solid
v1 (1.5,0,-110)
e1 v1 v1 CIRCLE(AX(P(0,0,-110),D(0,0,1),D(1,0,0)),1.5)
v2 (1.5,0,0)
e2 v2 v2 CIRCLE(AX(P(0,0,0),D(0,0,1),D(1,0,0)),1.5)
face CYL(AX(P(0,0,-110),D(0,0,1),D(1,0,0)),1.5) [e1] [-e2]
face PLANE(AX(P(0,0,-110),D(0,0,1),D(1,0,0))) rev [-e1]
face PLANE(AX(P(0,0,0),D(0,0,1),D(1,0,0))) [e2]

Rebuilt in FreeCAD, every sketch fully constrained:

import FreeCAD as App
import Part
import Sketcher

V = App.Vector

doc = App.newDocument("Part")
params = doc.addObject("Spreadsheet::Sheet", "Params")
for row, (alias, value) in enumerate([
    ("sketch1_diameter", "3 mm"),
    ("pad1_length", "110 mm"),
], start=1):
    params.set(f"A{row}", alias)
    params.set(f"B{row}", "=" + value)
    params.setAlias(f"B{row}", alias)

body = doc.addObject("PartDesign::Body", "Body")

# Sketch on XY plane
sketch1 = body.newObject("Sketcher::SketchObject", "Sketch")
sketch1.AttachmentSupport = (doc.getObject("XY_Plane"), [""])
sketch1.MapMode = "FlatFace"
sketch1.addGeometry(Part.Circle(V(0, 0, 0), V(0, 0, 1), 1.5), False)
sketch1.addConstraint(Sketcher.Constraint("Coincident", 0, 3, -1, 1))
sketch1.addConstraint(Sketcher.Constraint("Diameter", 0, 3.0))
sketch1.setExpression("Constraints[1]", "Params.sketch1_diameter")
pad1 = body.newObject("PartDesign::Pad", "Pad")
pad1.Profile = sketch1
pad1.setExpression("Length", "Params.pad1_length")
pad1.Reversed = True

doc.recompute()
